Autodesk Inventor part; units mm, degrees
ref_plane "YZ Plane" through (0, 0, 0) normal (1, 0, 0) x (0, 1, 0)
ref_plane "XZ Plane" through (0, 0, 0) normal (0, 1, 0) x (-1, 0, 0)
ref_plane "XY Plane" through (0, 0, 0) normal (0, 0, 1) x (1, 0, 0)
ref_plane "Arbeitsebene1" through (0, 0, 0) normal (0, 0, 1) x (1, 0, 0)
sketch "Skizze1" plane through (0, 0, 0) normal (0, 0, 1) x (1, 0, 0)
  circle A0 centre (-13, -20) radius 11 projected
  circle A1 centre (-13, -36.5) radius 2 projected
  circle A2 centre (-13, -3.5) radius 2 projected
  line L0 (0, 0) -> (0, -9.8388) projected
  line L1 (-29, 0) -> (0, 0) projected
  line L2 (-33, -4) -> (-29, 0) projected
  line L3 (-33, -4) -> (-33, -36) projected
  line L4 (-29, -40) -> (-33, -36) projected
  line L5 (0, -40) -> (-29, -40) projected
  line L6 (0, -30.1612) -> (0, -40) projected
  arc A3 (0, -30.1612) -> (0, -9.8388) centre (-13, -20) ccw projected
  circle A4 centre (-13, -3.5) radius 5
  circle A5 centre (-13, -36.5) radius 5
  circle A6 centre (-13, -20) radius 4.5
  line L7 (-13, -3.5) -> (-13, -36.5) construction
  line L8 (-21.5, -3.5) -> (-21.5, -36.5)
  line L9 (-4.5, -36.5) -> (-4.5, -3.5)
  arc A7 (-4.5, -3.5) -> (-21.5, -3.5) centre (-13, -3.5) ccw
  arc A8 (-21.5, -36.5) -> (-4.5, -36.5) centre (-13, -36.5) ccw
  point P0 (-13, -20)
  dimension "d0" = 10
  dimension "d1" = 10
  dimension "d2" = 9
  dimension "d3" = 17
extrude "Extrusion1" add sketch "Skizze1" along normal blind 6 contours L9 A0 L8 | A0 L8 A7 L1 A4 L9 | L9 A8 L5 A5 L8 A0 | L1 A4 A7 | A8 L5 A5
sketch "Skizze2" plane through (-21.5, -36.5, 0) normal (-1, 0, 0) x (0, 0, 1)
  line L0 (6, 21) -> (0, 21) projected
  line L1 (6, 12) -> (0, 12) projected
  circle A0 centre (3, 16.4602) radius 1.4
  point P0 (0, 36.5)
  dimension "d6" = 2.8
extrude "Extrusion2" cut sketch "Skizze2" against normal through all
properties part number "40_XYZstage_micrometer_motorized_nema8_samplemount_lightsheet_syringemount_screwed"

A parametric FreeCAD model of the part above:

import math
import FreeCAD as App
import Part
import Sketcher
Q = App.Units.Quantity

doc = App.newDocument("Part")
body = doc.addObject("PartDesign::Body", "Body")

sketch1 = body.newObject("Sketcher::SketchObject", "Sketch")
sketch1.AttachmentSupport = (doc.getObject("XY_Plane"), [""])
sketch1.MapMode = "FlatFace"
sketch1.addGeometry(Part.ArcOfCircle(Part.Circle(App.Vector(-13, -3.5, 0), App.Vector(0, 0, 1), 8.5), math.radians(0), math.radians(180)), False)
sketch1.addGeometry(Part.LineSegment(App.Vector(-21.5, -3.5, 0), App.Vector(-21.5, -36.5, 0)), False)
sketch1.addGeometry(Part.ArcOfCircle(Part.Circle(App.Vector(-13, -36.5, 0), App.Vector(0, 0, 1), 8.5), math.radians(180), math.radians(360)), False)
sketch1.addGeometry(Part.LineSegment(App.Vector(-4.5, -36.5, 0), App.Vector(-4.5, -3.5, 0)), False)
sketch1.addGeometry(Part.Circle(App.Vector(-13, -20, 0), App.Vector(0, 0, 1), 4.5), False)
sketch1.addGeometry(Part.Circle(App.Vector(-13, -36.5, 0), App.Vector(0, 0, 1), 5), False)
sketch1.addGeometry(Part.Circle(App.Vector(-13, -3.5, 0), App.Vector(0, 0, 1), 5), False)
sketch1.addConstraint(Sketcher.Constraint("Tangent", 0, 2, 1, 1))
sketch1.addConstraint(Sketcher.Constraint("Tangent", 1, 2, 2, 1))
sketch1.addConstraint(Sketcher.Constraint("Tangent", 2, 2, 3, 1))
sketch1.addConstraint(Sketcher.Constraint("Tangent", 3, 2, 0, 1))
sketch1.addConstraint(Sketcher.Constraint("Vertical", 1))
sketch1.addConstraint(Sketcher.Constraint("Vertical", 3))
sketch1.addConstraint(Sketcher.Constraint("Coincident", 5, 3, 2, 3))
sketch1.addConstraint(Sketcher.Constraint("Coincident", 6, 3, 0, 3))
sketch1.addConstraint(Sketcher.Constraint("Equal", 5, 6))
sketch1.addConstraint(Sketcher.Constraint("Vertical", 2, 3, 4, 3))
sketch1.addConstraint(Sketcher.Constraint("Diameter", 4, Q("9 mm")))
sketch1.addConstraint(Sketcher.Constraint("Diameter", 5, Q("10 mm")))
sketch1.addConstraint(Sketcher.Constraint("Radius", 0, Q("8.5 mm")))
sketch1.addConstraint(Sketcher.Constraint("DistanceY", 1, 2, 1, 1, Q("33 mm")))
sketch1.addConstraint(Sketcher.Constraint("DistanceX", 0, 3, -1, 1, Q("13 mm")))
sketch1.addConstraint(Sketcher.Constraint("DistanceY", 4, 3, -1, 1, Q("20 mm")))
sketch1.addConstraint(Sketcher.Constraint("DistanceY", 0, 3, -1, 1, Q("3.5 mm")))
pad1 = body.newObject("PartDesign::Pad", "Pad")
pad1.Profile = sketch1
pad1.Length = 6

sketch2 = body.newObject("Sketcher::SketchObject", "Sketch001")
sketch2.AttachmentSupport = (doc.getObject("YZ_Plane"), [""])
sketch2.MapMode = "FlatFace"
sketch2.AttachmentOffset = App.Placement(App.Vector(0, 0, -21.5), App.Rotation())
sketch2.addGeometry(Part.Circle(App.Vector(-20.0398, 3, 0), App.Vector(0, 0, 1), 1.4), False)
sketch2.addConstraint(Sketcher.Constraint("Diameter", 0, Q("2.8 mm")))
sketch2.addConstraint(Sketcher.Constraint("DistanceY", -1, 1, 0, 3, Q("3 mm")))
sketch2.addConstraint(Sketcher.Constraint("DistanceX", 0, 3, -1, 1, Q("20.0398 mm")))
pocket1 = body.newObject("PartDesign::Pocket", "Pocket")
pocket1.Profile = sketch2
pocket1.Type = "ThroughAll"
pocket1.Reversed = True

doc.recompute()
